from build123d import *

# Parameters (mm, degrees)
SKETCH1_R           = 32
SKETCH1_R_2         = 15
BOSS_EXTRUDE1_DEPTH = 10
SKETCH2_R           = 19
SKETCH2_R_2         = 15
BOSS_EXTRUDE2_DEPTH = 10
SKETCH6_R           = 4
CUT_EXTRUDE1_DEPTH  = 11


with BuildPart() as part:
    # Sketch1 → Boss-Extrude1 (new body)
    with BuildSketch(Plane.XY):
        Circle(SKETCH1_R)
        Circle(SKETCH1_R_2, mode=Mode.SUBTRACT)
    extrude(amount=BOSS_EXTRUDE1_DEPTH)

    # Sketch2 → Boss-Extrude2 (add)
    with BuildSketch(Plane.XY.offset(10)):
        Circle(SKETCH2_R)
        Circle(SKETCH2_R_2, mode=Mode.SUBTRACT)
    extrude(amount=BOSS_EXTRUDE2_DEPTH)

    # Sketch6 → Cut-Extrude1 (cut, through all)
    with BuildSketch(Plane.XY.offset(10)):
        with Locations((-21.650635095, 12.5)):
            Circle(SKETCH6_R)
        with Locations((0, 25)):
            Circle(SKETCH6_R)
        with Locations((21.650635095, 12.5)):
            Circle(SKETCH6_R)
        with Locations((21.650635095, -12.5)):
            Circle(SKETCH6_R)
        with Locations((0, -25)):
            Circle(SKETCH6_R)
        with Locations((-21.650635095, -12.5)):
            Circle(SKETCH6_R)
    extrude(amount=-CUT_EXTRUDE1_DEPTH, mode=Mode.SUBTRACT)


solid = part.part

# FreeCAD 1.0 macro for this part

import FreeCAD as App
import Part
import Sketcher

V = App.Vector
Q = App.Units.Quantity

doc = App.newDocument("Part")
params = doc.addObject("Spreadsheet::Sheet", "Params")
for row, (alias, value) in enumerate([
    ("sketch1_diameter", "64 mm"),
    ("sketch1_diameter2", "30 mm"),
    ("pad1_length", "10 mm"),
    ("sketch2_diameter", "38 mm"),
    ("sketch2_diameter2", "30 mm"),
    ("pad2_length", "10 mm"),
    ("sketch3_diameter", "8 mm"),
], start=1):
    params.set(f"A{row}", alias)
    params.set(f"B{row}", "=" + value)
    params.setAlias(f"B{row}", alias)

body = doc.addObject("PartDesign::Body", "Body")

# Sketch on XY plane
sketch1 = doc.addObject("Sketcher::SketchObject", "Sketch")
body.addObject(sketch1)
sketch1.AttachmentSupport = (doc.XY_Plane, [""])
sketch1.MapMode = "FlatFace"
sketch1.addGeometry([
    Part.Circle(V(0, 0, 0), V(0, 0, 1), 32),
    Part.Circle(V(0, 0, 0), V(0, 0, 1), 15),
], False)
sketch1.addConstraint([
    Sketcher.Constraint("Coincident", 0, 3, -1, 1),
    Sketcher.Constraint("Coincident", 1, 3, -1, 1),
    Sketcher.Constraint("Diameter", 0, Q("64 mm")),
    Sketcher.Constraint("Diameter", 1, Q("30 mm")),
])
sketch1.setExpression("Constraints[2]", "Params.sketch1_diameter")
sketch1.setExpression("Constraints[3]", "Params.sketch1_diameter2")
pad1 = doc.addObject("PartDesign::Pad", "Pad")
body.addObject(pad1)
pad1.Profile = sketch1
pad1.setExpression("Length", "Params.pad1_length")

# Sketch on XY plane
sketch2 = doc.addObject("Sketcher::SketchObject", "Sketch001")
body.addObject(sketch2)
sketch2.AttachmentSupport = (doc.XY_Plane, [""])
sketch2.MapMode = "FlatFace"
sketch2.AttachmentOffset = App.Placement(V(0, 0, 10), App.Rotation())
sketch2.addGeometry([
    Part.Circle(V(0, 0, 0), V(0, 0, 1), 19),
    Part.Circle(V(0, 0, 0), V(0, 0, 1), 15),
], False)
sketch2.addConstraint([
    Sketcher.Constraint("Coincident", 0, 3, -1, 1),
    Sketcher.Constraint("Coincident", 1, 3, -1, 1),
    Sketcher.Constraint("Diameter", 0, Q("38 mm")),
    Sketcher.Constraint("Diameter", 1, Q("30 mm")),
])
sketch2.setExpression("Constraints[2]", "Params.sketch2_diameter")
sketch2.setExpression("Constraints[3]", "Params.sketch2_diameter2")
pad2 = doc.addObject("PartDesign::Pad", "Pad001")
body.addObject(pad2)
pad2.Profile = sketch2
pad2.setExpression("Length", "Params.pad2_length")

# Sketch on XY plane
sketch3 = doc.addObject("Sketcher::SketchObject", "Sketch002")
body.addObject(sketch3)
sketch3.AttachmentSupport = (doc.XY_Plane, [""])
sketch3.MapMode = "FlatFace"
sketch3.AttachmentOffset = App.Placement(V(0, 0, 10), App.Rotation())
sketch3.addGeometry([
    Part.Circle(V(-21.7, 12.5, 0), V(0, 0, 1), 4),  # 0
    Part.Circle(V(0, 25, 0), V(0, 0, 1), 4),  # 1
    Part.Circle(V(21.7, 12.5, 0), V(0, 0, 1), 4),  # 2
    Part.Circle(V(21.7, -12.5, 0), V(0, 0, 1), 4),  # 3
    Part.Circle(V(0, -25, 0), V(0, 0, 1), 4),  # 4
    Part.Circle(V(-21.7, -12.5, 0), V(0, 0, 1), 4),  # 5
], False)
sketch3.addConstraint([
    Sketcher.Constraint("Equal", 0, 1),
    Sketcher.Constraint("Equal", 1, 2),
    Sketcher.Constraint("Equal", 2, 3),
    Sketcher.Constraint("Equal", 3, 4),
    Sketcher.Constraint("Equal", 4, 5),
    Sketcher.Constraint("Symmetric", 0, 3, 3, 3, -1, 1),
    Sketcher.Constraint("Symmetric", 1, 3, 4, 3, -1, 1),
    Sketcher.Constraint("Symmetric", 2, 3, 5, 3, -1, 1),
    Sketcher.Constraint("Symmetric", 0, 3, 2, 3, -2),
    Sketcher.Constraint("PointOnObject", 1, 3, -2),
    Sketcher.Constraint("Diameter", 0, Q("8 mm")),
    Sketcher.Constraint("DistanceY", -1, 1, 1, 3, Q("25 mm")),
    Sketcher.Constraint("DistanceY", 3, 3, 2, 3, Q("25 mm")),
    Sketcher.Constraint("DistanceX", 0, 3, 2, 3, Q("43.30127 mm")),
])
sketch3.setExpression("Constraints[10]", "Params.sketch3_diameter")
pocket1 = doc.addObject("PartDesign::Pocket", "Pocket")
body.addObject(pocket1)
pocket1.Profile = sketch3
pocket1.Type = "ThroughAll"

doc.recompute()
